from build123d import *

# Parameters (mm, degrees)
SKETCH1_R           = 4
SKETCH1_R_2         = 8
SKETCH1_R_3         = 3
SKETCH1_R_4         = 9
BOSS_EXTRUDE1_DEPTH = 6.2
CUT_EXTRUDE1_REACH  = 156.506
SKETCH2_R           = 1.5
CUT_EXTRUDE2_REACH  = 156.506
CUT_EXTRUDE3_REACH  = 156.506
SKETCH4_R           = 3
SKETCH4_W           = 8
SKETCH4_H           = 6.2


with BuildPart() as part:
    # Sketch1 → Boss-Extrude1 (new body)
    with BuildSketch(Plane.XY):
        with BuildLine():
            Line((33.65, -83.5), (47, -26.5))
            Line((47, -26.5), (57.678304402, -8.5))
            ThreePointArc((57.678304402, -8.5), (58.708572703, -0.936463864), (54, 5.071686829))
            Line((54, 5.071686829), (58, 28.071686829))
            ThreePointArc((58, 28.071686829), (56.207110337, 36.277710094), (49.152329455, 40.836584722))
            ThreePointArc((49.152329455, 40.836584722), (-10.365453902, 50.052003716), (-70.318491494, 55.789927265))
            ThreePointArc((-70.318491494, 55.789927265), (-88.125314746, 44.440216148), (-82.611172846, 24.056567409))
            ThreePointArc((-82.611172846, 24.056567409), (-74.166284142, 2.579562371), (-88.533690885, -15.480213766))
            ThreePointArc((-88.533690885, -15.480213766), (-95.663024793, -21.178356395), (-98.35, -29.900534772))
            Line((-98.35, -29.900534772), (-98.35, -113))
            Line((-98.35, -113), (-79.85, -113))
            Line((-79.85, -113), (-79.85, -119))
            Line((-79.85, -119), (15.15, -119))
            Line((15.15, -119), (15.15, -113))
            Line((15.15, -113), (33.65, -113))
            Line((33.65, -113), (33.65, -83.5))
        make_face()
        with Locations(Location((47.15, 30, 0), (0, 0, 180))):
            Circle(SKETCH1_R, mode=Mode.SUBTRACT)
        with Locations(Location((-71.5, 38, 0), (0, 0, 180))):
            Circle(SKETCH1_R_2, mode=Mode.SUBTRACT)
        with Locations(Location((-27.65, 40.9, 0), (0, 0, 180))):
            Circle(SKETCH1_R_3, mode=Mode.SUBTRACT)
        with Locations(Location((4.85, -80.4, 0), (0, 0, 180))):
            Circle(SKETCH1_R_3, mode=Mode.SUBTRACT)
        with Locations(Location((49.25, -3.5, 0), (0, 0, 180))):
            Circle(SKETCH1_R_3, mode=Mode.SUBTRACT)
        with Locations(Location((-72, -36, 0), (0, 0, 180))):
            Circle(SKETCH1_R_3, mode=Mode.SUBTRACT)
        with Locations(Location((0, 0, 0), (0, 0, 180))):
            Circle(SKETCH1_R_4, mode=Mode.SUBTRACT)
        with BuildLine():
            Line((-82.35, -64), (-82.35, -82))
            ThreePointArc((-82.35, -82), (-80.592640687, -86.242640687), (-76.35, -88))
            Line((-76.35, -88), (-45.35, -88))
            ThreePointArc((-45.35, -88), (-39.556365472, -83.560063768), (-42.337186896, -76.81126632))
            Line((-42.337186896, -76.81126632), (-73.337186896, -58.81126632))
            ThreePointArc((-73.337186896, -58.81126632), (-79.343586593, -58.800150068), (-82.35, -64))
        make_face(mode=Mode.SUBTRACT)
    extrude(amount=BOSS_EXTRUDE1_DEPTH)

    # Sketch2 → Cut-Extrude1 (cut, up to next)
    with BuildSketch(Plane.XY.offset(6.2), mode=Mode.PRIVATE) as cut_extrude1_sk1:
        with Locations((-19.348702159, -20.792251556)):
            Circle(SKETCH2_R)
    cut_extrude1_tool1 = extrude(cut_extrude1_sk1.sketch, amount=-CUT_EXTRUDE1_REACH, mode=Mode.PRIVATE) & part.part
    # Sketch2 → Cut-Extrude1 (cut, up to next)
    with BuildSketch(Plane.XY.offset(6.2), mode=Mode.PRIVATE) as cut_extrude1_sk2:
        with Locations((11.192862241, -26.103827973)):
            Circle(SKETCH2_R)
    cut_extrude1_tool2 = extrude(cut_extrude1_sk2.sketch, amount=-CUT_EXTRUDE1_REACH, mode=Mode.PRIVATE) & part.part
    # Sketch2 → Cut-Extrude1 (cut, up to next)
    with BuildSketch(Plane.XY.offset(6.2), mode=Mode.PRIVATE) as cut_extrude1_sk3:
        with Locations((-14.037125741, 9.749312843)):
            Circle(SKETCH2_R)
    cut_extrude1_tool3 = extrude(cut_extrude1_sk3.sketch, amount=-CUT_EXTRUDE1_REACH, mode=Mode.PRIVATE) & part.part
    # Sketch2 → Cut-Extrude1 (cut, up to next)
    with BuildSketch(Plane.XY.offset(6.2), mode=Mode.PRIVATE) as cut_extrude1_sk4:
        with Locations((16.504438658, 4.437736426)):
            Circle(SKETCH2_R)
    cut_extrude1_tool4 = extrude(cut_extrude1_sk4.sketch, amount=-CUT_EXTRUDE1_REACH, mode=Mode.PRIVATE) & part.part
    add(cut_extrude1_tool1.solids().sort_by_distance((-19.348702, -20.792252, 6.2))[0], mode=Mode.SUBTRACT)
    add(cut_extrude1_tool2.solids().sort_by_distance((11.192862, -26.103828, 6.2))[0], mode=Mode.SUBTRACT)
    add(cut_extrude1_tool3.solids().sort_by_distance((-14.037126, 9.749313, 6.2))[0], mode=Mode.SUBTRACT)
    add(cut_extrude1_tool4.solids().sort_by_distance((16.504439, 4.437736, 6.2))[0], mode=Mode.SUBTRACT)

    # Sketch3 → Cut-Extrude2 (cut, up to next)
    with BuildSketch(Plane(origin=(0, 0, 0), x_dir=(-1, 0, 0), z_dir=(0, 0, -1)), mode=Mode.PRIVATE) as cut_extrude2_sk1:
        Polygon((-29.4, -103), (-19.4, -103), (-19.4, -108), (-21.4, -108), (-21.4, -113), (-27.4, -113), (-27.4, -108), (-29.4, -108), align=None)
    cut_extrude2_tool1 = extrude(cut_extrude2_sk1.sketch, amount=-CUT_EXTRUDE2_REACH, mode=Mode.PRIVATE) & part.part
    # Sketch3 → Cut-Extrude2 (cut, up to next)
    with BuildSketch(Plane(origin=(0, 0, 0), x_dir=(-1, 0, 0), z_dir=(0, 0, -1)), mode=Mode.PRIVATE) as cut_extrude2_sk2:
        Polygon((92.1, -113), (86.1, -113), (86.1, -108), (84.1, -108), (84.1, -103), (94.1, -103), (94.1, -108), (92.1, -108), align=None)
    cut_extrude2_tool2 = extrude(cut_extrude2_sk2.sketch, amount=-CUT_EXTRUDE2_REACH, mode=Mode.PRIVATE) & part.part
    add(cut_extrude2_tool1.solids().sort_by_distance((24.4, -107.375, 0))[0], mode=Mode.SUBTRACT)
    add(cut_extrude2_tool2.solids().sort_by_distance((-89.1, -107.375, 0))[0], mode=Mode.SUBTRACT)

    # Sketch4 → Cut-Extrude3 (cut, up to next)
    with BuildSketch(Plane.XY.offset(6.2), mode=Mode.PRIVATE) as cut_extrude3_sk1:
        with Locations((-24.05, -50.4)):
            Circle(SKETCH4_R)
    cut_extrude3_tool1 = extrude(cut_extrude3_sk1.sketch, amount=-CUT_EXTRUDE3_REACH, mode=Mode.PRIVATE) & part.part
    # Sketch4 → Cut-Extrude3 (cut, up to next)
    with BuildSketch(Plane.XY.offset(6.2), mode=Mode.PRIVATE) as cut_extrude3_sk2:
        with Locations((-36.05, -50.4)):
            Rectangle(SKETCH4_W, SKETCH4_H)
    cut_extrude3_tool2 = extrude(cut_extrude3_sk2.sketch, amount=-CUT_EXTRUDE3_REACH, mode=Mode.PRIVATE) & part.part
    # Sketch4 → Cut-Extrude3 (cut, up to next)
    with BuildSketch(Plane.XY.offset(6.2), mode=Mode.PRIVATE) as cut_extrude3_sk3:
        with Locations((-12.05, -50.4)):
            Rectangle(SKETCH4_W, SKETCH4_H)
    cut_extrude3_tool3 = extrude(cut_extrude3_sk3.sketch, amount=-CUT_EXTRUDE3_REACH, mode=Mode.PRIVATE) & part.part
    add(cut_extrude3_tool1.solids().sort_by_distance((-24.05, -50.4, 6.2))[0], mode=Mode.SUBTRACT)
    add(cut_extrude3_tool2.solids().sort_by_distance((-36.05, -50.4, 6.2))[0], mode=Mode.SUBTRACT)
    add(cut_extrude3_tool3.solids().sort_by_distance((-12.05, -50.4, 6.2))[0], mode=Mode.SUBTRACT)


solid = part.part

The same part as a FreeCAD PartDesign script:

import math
import FreeCAD as App
import Part
import Sketcher

V = App.Vector
Q = App.Units.Quantity

doc = App.newDocument("Part")
body = doc.addObject("PartDesign::Body", "Body")

sketch1 = doc.addObject("Sketcher::SketchObject", "Sketch")
body.addObject(sketch1)
sketch1.AttachmentSupport = (doc.XY_Plane, [""])
sketch1.MapMode = "FlatFace"
sketch1.addGeometry(Part.LineSegment(V(33.6, -83.5, 0), V(47, -26.5, 0)), False)
sketch1.addGeometry(Part.LineSegment(V(47, -26.5, 0), V(57.7, -8.5, 0)), False)
sketch1.addGeometry(Part.ArcOfCircle(Part.Circle(V(49.3, -3.5, 0), V(0, 0, 1), 9.8), math.radians(-31), math.radians(61)), False)
sketch1.addGeometry(Part.LineSegment(V(54, 5.1, 0), V(58, 28.1, 0)), False)
sketch1.addGeometry(Part.ArcOfCircle(Part.Circle(V(47.1, 30, 0), V(0, 0, 1), 11), math.radians(-10), math.radians(80)), False)
sketch1.addGeometry(Part.ArcOfCircle(Part.Circle(V(-138.9, -976.9, 0), V(0, 0, 1), 1035), math.radians(79.53), math.radians(86.2)), False)
sketch1.addGeometry(Part.ArcOfCircle(Part.Circle(V(-71.5, 38, 0), V(0, 0, 1), 17.8), math.radians(86), math.radians(231)), False)
sketch1.addGeometry(Part.ArcOfCircle(Part.Circle(V(-97, 6, 0), V(0, 0, 1), 23.1), math.radians(-68), math.radians(51)), False)
sketch1.addGeometry(Part.ArcOfCircle(Part.Circle(V(-82.8, -29.9, 0), V(0, 0, 1), 15.5), math.radians(112), math.radians(180)), False)
sketch1.addGeometry(Part.LineSegment(V(-98.3, -29.9, 0), V(-98.3, -113, 0)), False)
sketch1.addGeometry(Part.LineSegment(V(-98.3, -113, 0), V(-79.8, -113, 0)), False)
sketch1.addGeometry(Part.LineSegment(V(-79.8, -113, 0), V(-79.8, -119, 0)), False)
sketch1.addGeometry(Part.LineSegment(V(-79.8, -119, 0), V(15.2, -119, 0)), False)
sketch1.addGeometry(Part.LineSegment(V(15.2, -119, 0), V(15.2, -113, 0)), False)
sketch1.addGeometry(Part.LineSegment(V(15.2, -113, 0), V(33.6, -113, 0)), False)
sketch1.addGeometry(Part.LineSegment(V(33.6, -113, 0), V(33.6, -83.5, 0)), False)
sketch1.addGeometry(Part.LineSegment(V(-82.3, -82, 0), V(-82.3, -64, 0)), False)
sketch1.addGeometry(Part.ArcOfCircle(Part.Circle(V(-76.3, -64, 0), V(0, 0, 1), 6), math.radians(60), math.radians(180)), False)
sketch1.addGeometry(Part.LineSegment(V(-73.3, -58.8, 0), V(-42.3, -76.8, 0)), False)
sketch1.addGeometry(Part.ArcOfCircle(Part.Circle(V(-45.4, -82, 0), V(0, 0, 1), 6), math.radians(-90), math.radians(60)), False)
sketch1.addGeometry(Part.LineSegment(V(-45.4, -88, 0), V(-76.3, -88, 0)), False)
sketch1.addGeometry(Part.ArcOfCircle(Part.Circle(V(-76.3, -82, 0), V(0, 0, 1), 6), math.radians(180), math.radians(270)), False)
sketch1.addGeometry(Part.Circle(V(-72, -36, 0), V(0, 0, 1), 3), False)
sketch1.addGeometry(Part.Circle(V(4.8, -80.4, 0), V(0, 0, 1), 3), False)
sketch1.addGeometry(Part.Circle(V(-71.5, 38, 0), V(0, 0, 1), 8), False)
sketch1.addGeometry(Part.Circle(V(-27.6, 40.9, 0), V(0, 0, 1), 3), False)
sketch1.addGeometry(Part.Circle(V(0, 0, 0), V(0, 0, 1), 9), False)
sketch1.addGeometry(Part.Circle(V(49.2, -3.5, 0), V(0, 0, 1), 3), False)
sketch1.addGeometry(Part.Circle(V(47.1, 30, 0), V(0, 0, 1), 4), False)
sketch1.addConstraint(Sketcher.Constraint("Coincident", 0, 2, 1, 1))
sketch1.addConstraint(Sketcher.Constraint("Tangent", 1, 2, 2, 1))
sketch1.addConstraint(Sketcher.Constraint("Coincident", 2, 2, 3, 1))
sketch1.addConstraint(Sketcher.Constraint("Coincident", 3, 2, 4, 1))
sketch1.addConstraint(Sketcher.Constraint("Tangent", 4, 2, 5, 1))
sketch1.addConstraint(Sketcher.Constraint("Tangent", 5, 2, 6, 1))
sketch1.addConstraint(Sketcher.Constraint("Tangent", 6, 2, 7, 2))
sketch1.addConstraint(Sketcher.Constraint("Tangent", 7, 1, 8, 1))
sketch1.addConstraint(Sketcher.Constraint("Tangent", 8, 2, 9, 1))
sketch1.addConstraint(Sketcher.Constraint("Coincident", 9, 2, 10, 1))
sketch1.addConstraint(Sketcher.Constraint("Coincident", 10, 2, 11, 1))
sketch1.addConstraint(Sketcher.Constraint("Coincident", 11, 2, 12, 1))
sketch1.addConstraint(Sketcher.Constraint("Coincident", 12, 2, 13, 1))
sketch1.addConstraint(Sketcher.Constraint("Coincident", 13, 2, 14, 1))
sketch1.addConstraint(Sketcher.Constraint("Coincident", 14, 2, 15, 1))
sketch1.addConstraint(Sketcher.Constraint("Coincident", 15, 2, 0, 1))
sketch1.addConstraint(Sketcher.Constraint("Tangent", 16, 2, 17, 2))
sketch1.addConstraint(Sketcher.Constraint("Tangent", 17, 1, 18, 1))
sketch1.addConstraint(Sketcher.Constraint("Tangent", 18, 2, 19, 2))
sketch1.addConstraint(Sketcher.Constraint("Tangent", 19, 1, 20, 1))
sketch1.addConstraint(Sketcher.Constraint("Tangent", 20, 2, 21, 2))
sketch1.addConstraint(Sketcher.Constraint("Tangent", 21, 1, 16, 1))
sketch1.addConstraint(Sketcher.Constraint("Vertical", 9))
sketch1.addConstraint(Sketcher.Constraint("Horizontal", 10))
sketch1.addConstraint(Sketcher.Constraint("Vertical", 11))
sketch1.addConstraint(Sketcher.Constraint("Horizontal", 12))
sketch1.addConstraint(Sketcher.Constraint("Vertical", 13))
sketch1.addConstraint(Sketcher.Constraint("Horizontal", 14))
sketch1.addConstraint(Sketcher.Constraint("Vertical", 15))
sketch1.addConstraint(Sketcher.Constraint("Vertical", 16))
sketch1.addConstraint(Sketcher.Constraint("Horizontal", 20))
sketch1.addConstraint(Sketcher.Constraint("Coincident", 26, 3, -1, 1))
sketch1.addConstraint(Sketcher.Constraint("Coincident", 24, 3, 6, 3))
sketch1.addConstraint(Sketcher.Constraint("Coincident", 27, 3, 2, 3))
sketch1.addConstraint(Sketcher.Constraint("Coincident", 28, 3, 4, 3))
sketch1.addConstraint(Sketcher.Constraint("Equal", 17, 19))
sketch1.addConstraint(Sketcher.Constraint("Equal", 19, 21))
sketch1.addConstraint(Sketcher.Constraint("Equal", 22, 23))
sketch1.addConstraint(Sketcher.Constraint("Equal", 23, 25))
sketch1.addConstraint(Sketcher.Constraint("Equal", 25, 27))
sketch1.addConstraint(Sketcher.Constraint("Horizontal", 10, 2, 13, 2))
sketch1.addConstraint(Sketcher.Constraint("Equal", 10, 14))
sketch1.addConstraint(Sketcher.Constraint("Diameter", 22, Q("6 mm")))
sketch1.addConstraint(Sketcher.Constraint("Diameter", 24, Q("16 mm")))
sketch1.addConstraint(Sketcher.Constraint("Diameter", 26, Q("18 mm")))
sketch1.addConstraint(Sketcher.Constraint("Diameter", 28, Q("8 mm")))
sketch1.addConstraint(Sketcher.Constraint("Radius", 5, Q("1035 mm")))
sketch1.addConstraint(Sketcher.Constraint("Radius", 17, Q("6 mm")))
sketch1.addConstraint(Sketcher.Constraint("Radius", 8, Q("15.5 mm")))
sketch1.addConstraint(Sketcher.Constraint("DistanceX", 12, 1, 12, 2, Q("95 mm")))
sketch1.addConstraint(Sketcher.Constraint("DistanceX", 20, 2, 20, 1, Q("31 mm")))
sketch1.addConstraint(Sketcher.Constraint("DistanceY", 11, 2, 11, 1, Q("6 mm")))
sketch1.addConstraint(Sketcher.Constraint("DistanceY", 16, 1, 16, 2, Q("18 mm")))
sketch1.addConstraint(Sketcher.Constraint("DistanceX", 10, 1, 10, 2, Q("18.5 mm")))
sketch1.addConstraint(Sketcher.Constraint("DistanceY", 15, 1, 15, 2, Q("29.5 mm")))
sketch1.addConstraint(Sketcher.Constraint("DistanceY", -1, 1, 4, 3, Q("30 mm")))
sketch1.addConstraint(Sketcher.Constraint("DistanceY", -1, 1, 6, 3, Q("38 mm")))
sketch1.addConstraint(Sketcher.Constraint("DistanceX", 7, 3, -1, 1, Q("97 mm")))
sketch1.addConstraint(Sketcher.Constraint("DistanceY", -1, 1, 7, 3, Q("6 mm")))
sketch1.addConstraint(Sketcher.Constraint("DistanceY", 17, 3, -1, 1, Q("64 mm")))
sketch1.addConstraint(Sketcher.Constraint("DistanceX", 22, 3, -1, 1, Q("72 mm")))
sketch1.addConstraint(Sketcher.Constraint("DistanceY", 22, 3, -1, 1, Q("36 mm")))
sketch1.addConstraint(Sketcher.Constraint("DistanceX", -1, 1, 0, 2, Q("47 mm")))
sketch1.addConstraint(Sketcher.Constraint("DistanceX", -1, 1, 2, 2, Q("54 mm")))
sketch1.addConstraint(Sketcher.Constraint("DistanceX", -1, 1, 3, 2, Q("58 mm")))
sketch1.addConstraint(Sketcher.Constraint("DistanceY", 9, 2, -1, 1, Q("113 mm")))
sketch1.addConstraint(Sketcher.Constraint("DistanceX", 8, 3, 4, 3, Q("130 mm")))
sketch1.addConstraint(Sketcher.Constraint("DistanceY", 0, 2, 27, 3, Q("23 mm")))
sketch1.addConstraint(Sketcher.Constraint("DistanceY", 1, 2, 2, 3, Q("5 mm")))
sketch1.addConstraint(Sketcher.Constraint("DistanceY", 2, 2, 3, 2, Q("23 mm")))
sketch1.addConstraint(Sketcher.Constraint("DistanceX", 8, 2, 17, 3, Q("22 mm")))
sketch1.addConstraint(Sketcher.Constraint("DistanceY", 15, 2, 0, 2, Q("57 mm")))
sketch1.addConstraint(Sketcher.Constraint("DistanceX", 6, 3, -1, 1, Q("71.5 mm")))
sketch1.addConstraint(Sketcher.Constraint("DistanceY", 23, 3, -1, 1, Q("80.4 mm")))
sketch1.addConstraint(Sketcher.Constraint("DistanceY", -1, 1, 25, 3, Q("40.9 mm")))
sketch1.addConstraint(Sketcher.Constraint("DistanceX", 4, 3, 2, 3, Q("2.1 mm")))
sketch1.addConstraint(Sketcher.Constraint("DistanceX", 19, 3, 23, 3, Q("50.2 mm")))
sketch1.addConstraint(Sketcher.Constraint("DistanceX", 25, 3, 4, 3, Q("74.8 mm")))
sketch1.addConstraint(Sketcher.Constraint("DistanceX", -1, 1, 2, 3, Q("49.25 mm")))
sketch1.addConstraint(Sketcher.Constraint("Radius", 6, Q("17.829119 mm")))
pad1 = doc.addObject("PartDesign::Pad", "Pad")
body.addObject(pad1)
pad1.Profile = sketch1
pad1.Length = 6.2

sketch2 = doc.addObject("Sketcher::SketchObject", "Sketch001")
body.addObject(sketch2)
sketch2.AttachmentSupport = (doc.XY_Plane, [""])
sketch2.MapMode = "FlatFace"
sketch2.AttachmentOffset = App.Placement(V(0, 0, 6.2), App.Rotation())
sketch2.addGeometry(Part.Circle(V(-19.3, -20.8, 0), V(0, 0, 1), 1.5), False)
sketch2.addConstraint(Sketcher.Constraint("Diameter", 0, Q("3 mm")))
sketch2.addConstraint(Sketcher.Constraint("DistanceY", 0, 3, -1, 1, Q("20.792252 mm")))
sketch2.addConstraint(Sketcher.Constraint("DistanceX", 0, 3, -1, 1, Q("19.348702 mm")))
pocket1 = doc.addObject("PartDesign::Pocket", "Pocket")
body.addObject(pocket1)
pocket1.Profile = sketch2
pocket1.Type = "UpToFirst"

sketch3 = doc.addObject("Sketcher::SketchObject", "Sketch002")
body.addObject(sketch3)
sketch3.AttachmentSupport = (doc.XY_Plane, [""])
sketch3.MapMode = "FlatFace"
sketch3.AttachmentOffset = App.Placement(V(0, 0, 6.2), App.Rotation())
sketch3.addGeometry(Part.Circle(V(11.2, -26.1, 0), V(0, 0, 1), 1.5), False)
sketch3.addConstraint(Sketcher.Constraint("Diameter", 0, Q("3 mm")))
sketch3.addConstraint(Sketcher.Constraint("DistanceX", -1, 1, 0, 3, Q("11.192862 mm")))
sketch3.addConstraint(Sketcher.Constraint("DistanceY", 0, 3, -1, 1, Q("26.103828 mm")))
pocket2 = doc.addObject("PartDesign::Pocket", "Pocket001")
body.addObject(pocket2)
pocket2.Profile = sketch3
pocket2.Type = "UpToFirst"

sketch4 = doc.addObject("Sketcher::SketchObject", "Sketch003")
body.addObject(sketch4)
sketch4.AttachmentSupport = (doc.XY_Plane, [""])
sketch4.MapMode = "FlatFace"
sketch4.AttachmentOffset = App.Placement(V(0, 0, 6.2), App.Rotation())
sketch4.addGeometry(Part.Circle(V(-14, 9.7, 0), V(0, 0, 1), 1.5), False)
sketch4.addConstraint(Sketcher.Constraint("Diameter", 0, Q("3 mm")))
sketch4.addConstraint(Sketcher.Constraint("DistanceX", 0, 3, -1, 1, Q("14.037126 mm")))
sketch4.addConstraint(Sketcher.Constraint("DistanceY", -1, 1, 0, 3, Q("9.749313 mm")))
pocket3 = doc.addObject("PartDesign::Pocket", "Pocket002")
body.addObject(pocket3)
pocket3.Profile = sketch4
pocket3.Type = "UpToFirst"

sketch5 = doc.addObject("Sketcher::SketchObject", "Sketch004")
body.addObject(sketch5)
sketch5.AttachmentSupport = (doc.XY_Plane, [""])
sketch5.MapMode = "FlatFace"
sketch5.AttachmentOffset = App.Placement(V(0, 0, 6.2), App.Rotation())
sketch5.addGeometry(Part.Circle(V(16.5, 4.4, 0), V(0, 0, 1), 1.5), False)
sketch5.addConstraint(Sketcher.Constraint("Diameter", 0, Q("3 mm")))
sketch5.addConstraint(Sketcher.Constraint("DistanceX", -1, 1, 0, 3, Q("16.504439 mm")))
sketch5.addConstraint(Sketcher.Constraint("DistanceY", -1, 1, 0, 3, Q("4.437736 mm")))
pocket4 = doc.addObject("PartDesign::Pocket", "Pocket003")
body.addObject(pocket4)
pocket4.Profile = sketch5
pocket4.Type = "UpToFirst"

sketch6 = doc.addObject("Sketcher::SketchObject", "Sketch005")
body.addObject(sketch6)
sketch6.AttachmentSupport = (doc.XY_Plane, [""])
sketch6.MapMode = "FlatFace"
sketch6.addGeometry(Part.LineSegment(V(19.4, -103, 0), V(29.4, -103, 0)), False)
sketch6.addGeometry(Part.LineSegment(V(29.4, -103, 0), V(29.4, -108, 0)), False)
sketch6.addGeometry(Part.LineSegment(V(29.4, -108, 0), V(27.4, -108, 0)), False)
sketch6.addGeometry(Part.LineSegment(V(27.4, -108, 0), V(27.4, -113, 0)), False)
sketch6.addGeometry(Part.LineSegment(V(27.4, -113, 0), V(21.4, -113, 0)), False)
sketch6.addGeometry(Part.LineSegment(V(21.4, -113, 0), V(21.4, -108, 0)), False)
sketch6.addGeometry(Part.LineSegment(V(21.4, -108, 0), V(19.4, -108, 0)), False)
sketch6.addGeometry(Part.LineSegment(V(19.4, -108, 0), V(19.4, -103, 0)), False)
sketch6.addConstraint(Sketcher.Constraint("Coincident", 0, 2, 1, 1))
sketch6.addConstraint(Sketcher.Constraint("Coincident", 1, 2, 2, 1))
sketch6.addConstraint(Sketcher.Constraint("Coincident", 2, 2, 3, 1))
sketch6.addConstraint(Sketcher.Constraint("Coincident", 3, 2, 4, 1))
sketch6.addConstraint(Sketcher.Constraint("Coincident", 4, 2, 5, 1))
sketch6.addConstraint(Sketcher.Constraint("Coincident", 5, 2, 6, 1))
sketch6.addConstraint(Sketcher.Constraint("Coincident", 6, 2, 7, 1))
sketch6.addConstraint(Sketcher.Constraint("Coincident", 7, 2, 0, 1))
sketch6.addConstraint(Sketcher.Constraint("Horizontal", 0))
sketch6.addConstraint(Sketcher.Constraint("Vertical", 1))
sketch6.addConstraint(Sketcher.Constraint("Horizontal", 2))
sketch6.addConstraint(Sketcher.Constraint("Vertical", 3))
sketch6.addConstraint(Sketcher.Constraint("Horizontal", 4))
sketch6.addConstraint(Sketcher.Constraint("Vertical", 5))
sketch6.addConstraint(Sketcher.Constraint("Horizontal", 6))
sketch6.addConstraint(Sketcher.Constraint("Vertical", 7))
sketch6.addConstraint(Sketcher.Constraint("Horizontal", 2, 2, 5, 2))
sketch6.addConstraint(Sketcher.Constraint("Equal", 2, 6))
sketch6.addConstraint(Sketcher.Constraint("Equal", 1, 3))
sketch6.addConstraint(Sketcher.Constraint("DistanceX", 0, 1, 0, 2, Q("10 mm")))
sketch6.addConstraint(Sketcher.Constraint("DistanceX", 2, 2, 2, 1, Q("2 mm")))
sketch6.addConstraint(Sketcher.Constraint("DistanceY", 1, 2, 1, 1, Q("5 mm")))
sketch6.addConstraint(Sketcher.Constraint("DistanceY", 0, 2, -1, 1, Q("103 mm")))
sketch6.addConstraint(Sketcher.Constraint("DistanceX", -1, 1, 0, 2, Q("29.4 mm")))
pocket5 = doc.addObject("PartDesign::Pocket", "Pocket004")
body.addObject(pocket5)
pocket5.Profile = sketch6
pocket5.Type = "UpToFirst"
pocket5.Reversed = True

sketch7 = doc.addObject("Sketcher::SketchObject", "Sketch006")
body.addObject(sketch7)
sketch7.AttachmentSupport = (doc.XY_Plane, [""])
sketch7.MapMode = "FlatFace"
sketch7.addGeometry(Part.LineSegment(V(-86.1, -113, 0), V(-92.1, -113, 0)), False)
sketch7.addGeometry(Part.LineSegment(V(-92.1, -113, 0), V(-92.1, -108, 0)), False)
sketch7.addGeometry(Part.LineSegment(V(-92.1, -108, 0), V(-94.1, -108, 0)), False)
sketch7.addGeometry(Part.LineSegment(V(-94.1, -108, 0), V(-94.1, -103, 0)), False)
sketch7.addGeometry(Part.LineSegment(V(-94.1, -103, 0), V(-84.1, -103, 0)), False)
sketch7.addGeometry(Part.LineSegment(V(-84.1, -103, 0), V(-84.1, -108, 0)), False)
sketch7.addGeometry(Part.LineSegment(V(-84.1, -108, 0), V(-86.1, -108, 0)), False)
sketch7.addGeometry(Part.LineSegment(V(-86.1, -108, 0), V(-86.1, -113, 0)), False)
sketch7.addConstraint(Sketcher.Constraint("Coincident", 0, 2, 1, 1))
sketch7.addConstraint(Sketcher.Constraint("Coincident", 1, 2, 2, 1))
sketch7.addConstraint(Sketcher.Constraint("Coincident", 2, 2, 3, 1))
sketch7.addConstraint(Sketcher.Constraint("Coincident", 3, 2, 4, 1))
sketch7.addConstraint(Sketcher.Constraint("Coincident", 4, 2, 5, 1))
sketch7.addConstraint(Sketcher.Constraint("Coincident", 5, 2, 6, 1))
sketch7.addConstraint(Sketcher.Constraint("Coincident", 6, 2, 7, 1))
sketch7.addConstraint(Sketcher.Constraint("Coincident", 7, 2, 0, 1))
sketch7.addConstraint(Sketcher.Constraint("Horizontal", 0))
sketch7.addConstraint(Sketcher.Constraint("Vertical", 1))
sketch7.addConstraint(Sketcher.Constraint("Horizontal", 2))
sketch7.addConstraint(Sketcher.Constraint("Vertical", 3))
sketch7.addConstraint(Sketcher.Constraint("Horizontal", 4))
sketch7.addConstraint(Sketcher.Constraint("Vertical", 5))
sketch7.addConstraint(Sketcher.Constraint("Horizontal", 6))
sketch7.addConstraint(Sketcher.Constraint("Vertical", 7))
sketch7.addConstraint(Sketcher.Constraint("Horizontal", 2, 2, 5, 2))
sketch7.addConstraint(Sketcher.Constraint("Equal", 2, 6))
sketch7.addConstraint(Sketcher.Constraint("Equal", 1, 3))
sketch7.addConstraint(Sketcher.Constraint("DistanceX", 0, 2, 0, 1, Q("6 mm")))
sketch7.addConstraint(Sketcher.Constraint("DistanceX", 2, 2, 2, 1, Q("2 mm")))
sketch7.addConstraint(Sketcher.Constraint("DistanceY", 1, 1, 1, 2, Q("5 mm")))
sketch7.addConstraint(Sketcher.Constraint("DistanceY", 0, 2, -1, 1, Q("113 mm")))
sketch7.addConstraint(Sketcher.Constraint("DistanceX", 0, 2, -1, 1, Q("92.1 mm")))
pocket6 = doc.addObject("PartDesign::Pocket", "Pocket005")
body.addObject(pocket6)
pocket6.Profile = sketch7
pocket6.Type = "UpToFirst"
pocket6.Reversed = True

sketch8 = doc.addObject("Sketcher::SketchObject", "Sketch007")
body.addObject(sketch8)
sketch8.AttachmentSupport = (doc.XY_Plane, [""])
sketch8.MapMode = "FlatFace"
sketch8.AttachmentOffset = App.Placement(V(0, 0, 6.2), App.Rotation())
sketch8.addGeometry(Part.Circle(V(-24.1, -50.4, 0), V(0, 0, 1), 3), False)
sketch8.addConstraint(Sketcher.Constraint("Diameter", 0, Q("6 mm")))
sketch8.addConstraint(Sketcher.Constraint("DistanceY", 0, 3, -1, 1, Q("50.4 mm")))
sketch8.addConstraint(Sketcher.Constraint("DistanceX", 0, 3, -1, 1, Q("24.05 mm")))
pocket7 = doc.addObject("PartDesign::Pocket", "Pocket006")
body.addObject(pocket7)
pocket7.Profile = sketch8
pocket7.Type = "UpToFirst"

sketch9 = doc.addObject("Sketcher::SketchObject", "Sketch008")
body.addObject(sketch9)
sketch9.AttachmentSupport = (doc.XY_Plane, [""])
sketch9.MapMode = "FlatFace"
sketch9.AttachmentOffset = App.Placement(V(0, 0, 6.2), App.Rotation())
sketch9.addGeometry(Part.LineSegment(V(-40, -47, 0), V(-40, -54, 0)), False)
sketch9.addGeometry(Part.LineSegment(V(-40, -54, 0), V(-32, -54, 0)), False)
sketch9.addGeometry(Part.LineSegment(V(-32, -54, 0), V(-32, -47, 0)), False)
sketch9.addGeometry(Part.LineSegment(V(-32, -47, 0), V(-40, -47, 0)), False)
sketch9.addConstraint(Sketcher.Constraint("Coincident", 0, 2, 1, 1))
sketch9.addConstraint(Sketcher.Constraint("Coincident", 1, 2, 2, 1))
sketch9.addConstraint(Sketcher.Constraint("Coincident", 2, 2, 3, 1))
sketch9.addConstraint(Sketcher.Constraint("Coincident", 3, 2, 0, 1))
sketch9.addConstraint(Sketcher.Constraint("Vertical", 0))
sketch9.addConstraint(Sketcher.Constraint("Horizontal", 1))
sketch9.addConstraint(Sketcher.Constraint("Vertical", 2))
sketch9.addConstraint(Sketcher.Constraint("Horizontal", 3))
sketch9.addConstraint(Sketcher.Constraint("DistanceX", 1, 1, 1, 2, Q("8 mm")))
sketch9.addConstraint(Sketcher.Constraint("DistanceY", 0, 2, 0, 1, Q("6.2 mm")))
sketch9.addConstraint(Sketcher.Constraint("DistanceY", 0, 2, -1, 1, Q("53.5 mm")))
sketch9.addConstraint(Sketcher.Constraint("DistanceX", 0, 2, -1, 1, Q("40.05 mm")))
pocket8 = doc.addObject("PartDesign::Pocket", "Pocket007")
body.addObject(pocket8)
pocket8.Profile = sketch9
pocket8.Type = "UpToFirst"

sketch10 = doc.addObject("Sketcher::SketchObject", "Sketch009")
body.addObject(sketch10)
sketch10.AttachmentSupport = (doc.XY_Plane, [""])
sketch10.MapMode = "FlatFace"
sketch10.AttachmentOffset = App.Placement(V(0, 0, 6.2), App.Rotation())
sketch10.addGeometry(Part.LineSegment(V(-16, -47, 0), V(-16, -54, 0)), False)
sketch10.addGeometry(Part.LineSegment(V(-16, -54, 0), V(-8, -54, 0)), False)
sketch10.addGeometry(Part.LineSegment(V(-8, -54, 0), V(-8, -47, 0)), False)
sketch10.addGeometry(Part.LineSegment(V(-8, -47, 0), V(-16, -47, 0)), False)
sketch10.addConstraint(Sketcher.Constraint("Coincident", 0, 2, 1, 1))
sketch10.addConstraint(Sketcher.Constraint("Coincident", 1, 2, 2, 1))
sketch10.addConstraint(Sketcher.Constraint("Coincident", 2, 2, 3, 1))
sketch10.addConstraint(Sketcher.Constraint("Coincident", 3, 2, 0, 1))
sketch10.addConstraint(Sketcher.Constraint("Vertical", 0))
sketch10.addConstraint(Sketcher.Constraint("Horizontal", 1))
sketch10.addConstraint(Sketcher.Constraint("Vertical", 2))
sketch10.addConstraint(Sketcher.Constraint("Horizontal", 3))
sketch10.addConstraint(Sketcher.Constraint("DistanceX", 1, 1, 1, 2, Q("8 mm")))
sketch10.addConstraint(Sketcher.Constraint("DistanceY", 0, 2, 0, 1, Q("6.2 mm")))
sketch10.addConstraint(Sketcher.Constraint("DistanceY", 0, 2, -1, 1, Q("53.5 mm")))
sketch10.addConstraint(Sketcher.Constraint("DistanceX", 0, 2, -1, 1, Q("16.05 mm")))
pocket9 = doc.addObject("PartDesign::Pocket", "Pocket008")
body.addObject(pocket9)
pocket9.Profile = sketch10
pocket9.Type = "UpToFirst"

doc.recompute()
